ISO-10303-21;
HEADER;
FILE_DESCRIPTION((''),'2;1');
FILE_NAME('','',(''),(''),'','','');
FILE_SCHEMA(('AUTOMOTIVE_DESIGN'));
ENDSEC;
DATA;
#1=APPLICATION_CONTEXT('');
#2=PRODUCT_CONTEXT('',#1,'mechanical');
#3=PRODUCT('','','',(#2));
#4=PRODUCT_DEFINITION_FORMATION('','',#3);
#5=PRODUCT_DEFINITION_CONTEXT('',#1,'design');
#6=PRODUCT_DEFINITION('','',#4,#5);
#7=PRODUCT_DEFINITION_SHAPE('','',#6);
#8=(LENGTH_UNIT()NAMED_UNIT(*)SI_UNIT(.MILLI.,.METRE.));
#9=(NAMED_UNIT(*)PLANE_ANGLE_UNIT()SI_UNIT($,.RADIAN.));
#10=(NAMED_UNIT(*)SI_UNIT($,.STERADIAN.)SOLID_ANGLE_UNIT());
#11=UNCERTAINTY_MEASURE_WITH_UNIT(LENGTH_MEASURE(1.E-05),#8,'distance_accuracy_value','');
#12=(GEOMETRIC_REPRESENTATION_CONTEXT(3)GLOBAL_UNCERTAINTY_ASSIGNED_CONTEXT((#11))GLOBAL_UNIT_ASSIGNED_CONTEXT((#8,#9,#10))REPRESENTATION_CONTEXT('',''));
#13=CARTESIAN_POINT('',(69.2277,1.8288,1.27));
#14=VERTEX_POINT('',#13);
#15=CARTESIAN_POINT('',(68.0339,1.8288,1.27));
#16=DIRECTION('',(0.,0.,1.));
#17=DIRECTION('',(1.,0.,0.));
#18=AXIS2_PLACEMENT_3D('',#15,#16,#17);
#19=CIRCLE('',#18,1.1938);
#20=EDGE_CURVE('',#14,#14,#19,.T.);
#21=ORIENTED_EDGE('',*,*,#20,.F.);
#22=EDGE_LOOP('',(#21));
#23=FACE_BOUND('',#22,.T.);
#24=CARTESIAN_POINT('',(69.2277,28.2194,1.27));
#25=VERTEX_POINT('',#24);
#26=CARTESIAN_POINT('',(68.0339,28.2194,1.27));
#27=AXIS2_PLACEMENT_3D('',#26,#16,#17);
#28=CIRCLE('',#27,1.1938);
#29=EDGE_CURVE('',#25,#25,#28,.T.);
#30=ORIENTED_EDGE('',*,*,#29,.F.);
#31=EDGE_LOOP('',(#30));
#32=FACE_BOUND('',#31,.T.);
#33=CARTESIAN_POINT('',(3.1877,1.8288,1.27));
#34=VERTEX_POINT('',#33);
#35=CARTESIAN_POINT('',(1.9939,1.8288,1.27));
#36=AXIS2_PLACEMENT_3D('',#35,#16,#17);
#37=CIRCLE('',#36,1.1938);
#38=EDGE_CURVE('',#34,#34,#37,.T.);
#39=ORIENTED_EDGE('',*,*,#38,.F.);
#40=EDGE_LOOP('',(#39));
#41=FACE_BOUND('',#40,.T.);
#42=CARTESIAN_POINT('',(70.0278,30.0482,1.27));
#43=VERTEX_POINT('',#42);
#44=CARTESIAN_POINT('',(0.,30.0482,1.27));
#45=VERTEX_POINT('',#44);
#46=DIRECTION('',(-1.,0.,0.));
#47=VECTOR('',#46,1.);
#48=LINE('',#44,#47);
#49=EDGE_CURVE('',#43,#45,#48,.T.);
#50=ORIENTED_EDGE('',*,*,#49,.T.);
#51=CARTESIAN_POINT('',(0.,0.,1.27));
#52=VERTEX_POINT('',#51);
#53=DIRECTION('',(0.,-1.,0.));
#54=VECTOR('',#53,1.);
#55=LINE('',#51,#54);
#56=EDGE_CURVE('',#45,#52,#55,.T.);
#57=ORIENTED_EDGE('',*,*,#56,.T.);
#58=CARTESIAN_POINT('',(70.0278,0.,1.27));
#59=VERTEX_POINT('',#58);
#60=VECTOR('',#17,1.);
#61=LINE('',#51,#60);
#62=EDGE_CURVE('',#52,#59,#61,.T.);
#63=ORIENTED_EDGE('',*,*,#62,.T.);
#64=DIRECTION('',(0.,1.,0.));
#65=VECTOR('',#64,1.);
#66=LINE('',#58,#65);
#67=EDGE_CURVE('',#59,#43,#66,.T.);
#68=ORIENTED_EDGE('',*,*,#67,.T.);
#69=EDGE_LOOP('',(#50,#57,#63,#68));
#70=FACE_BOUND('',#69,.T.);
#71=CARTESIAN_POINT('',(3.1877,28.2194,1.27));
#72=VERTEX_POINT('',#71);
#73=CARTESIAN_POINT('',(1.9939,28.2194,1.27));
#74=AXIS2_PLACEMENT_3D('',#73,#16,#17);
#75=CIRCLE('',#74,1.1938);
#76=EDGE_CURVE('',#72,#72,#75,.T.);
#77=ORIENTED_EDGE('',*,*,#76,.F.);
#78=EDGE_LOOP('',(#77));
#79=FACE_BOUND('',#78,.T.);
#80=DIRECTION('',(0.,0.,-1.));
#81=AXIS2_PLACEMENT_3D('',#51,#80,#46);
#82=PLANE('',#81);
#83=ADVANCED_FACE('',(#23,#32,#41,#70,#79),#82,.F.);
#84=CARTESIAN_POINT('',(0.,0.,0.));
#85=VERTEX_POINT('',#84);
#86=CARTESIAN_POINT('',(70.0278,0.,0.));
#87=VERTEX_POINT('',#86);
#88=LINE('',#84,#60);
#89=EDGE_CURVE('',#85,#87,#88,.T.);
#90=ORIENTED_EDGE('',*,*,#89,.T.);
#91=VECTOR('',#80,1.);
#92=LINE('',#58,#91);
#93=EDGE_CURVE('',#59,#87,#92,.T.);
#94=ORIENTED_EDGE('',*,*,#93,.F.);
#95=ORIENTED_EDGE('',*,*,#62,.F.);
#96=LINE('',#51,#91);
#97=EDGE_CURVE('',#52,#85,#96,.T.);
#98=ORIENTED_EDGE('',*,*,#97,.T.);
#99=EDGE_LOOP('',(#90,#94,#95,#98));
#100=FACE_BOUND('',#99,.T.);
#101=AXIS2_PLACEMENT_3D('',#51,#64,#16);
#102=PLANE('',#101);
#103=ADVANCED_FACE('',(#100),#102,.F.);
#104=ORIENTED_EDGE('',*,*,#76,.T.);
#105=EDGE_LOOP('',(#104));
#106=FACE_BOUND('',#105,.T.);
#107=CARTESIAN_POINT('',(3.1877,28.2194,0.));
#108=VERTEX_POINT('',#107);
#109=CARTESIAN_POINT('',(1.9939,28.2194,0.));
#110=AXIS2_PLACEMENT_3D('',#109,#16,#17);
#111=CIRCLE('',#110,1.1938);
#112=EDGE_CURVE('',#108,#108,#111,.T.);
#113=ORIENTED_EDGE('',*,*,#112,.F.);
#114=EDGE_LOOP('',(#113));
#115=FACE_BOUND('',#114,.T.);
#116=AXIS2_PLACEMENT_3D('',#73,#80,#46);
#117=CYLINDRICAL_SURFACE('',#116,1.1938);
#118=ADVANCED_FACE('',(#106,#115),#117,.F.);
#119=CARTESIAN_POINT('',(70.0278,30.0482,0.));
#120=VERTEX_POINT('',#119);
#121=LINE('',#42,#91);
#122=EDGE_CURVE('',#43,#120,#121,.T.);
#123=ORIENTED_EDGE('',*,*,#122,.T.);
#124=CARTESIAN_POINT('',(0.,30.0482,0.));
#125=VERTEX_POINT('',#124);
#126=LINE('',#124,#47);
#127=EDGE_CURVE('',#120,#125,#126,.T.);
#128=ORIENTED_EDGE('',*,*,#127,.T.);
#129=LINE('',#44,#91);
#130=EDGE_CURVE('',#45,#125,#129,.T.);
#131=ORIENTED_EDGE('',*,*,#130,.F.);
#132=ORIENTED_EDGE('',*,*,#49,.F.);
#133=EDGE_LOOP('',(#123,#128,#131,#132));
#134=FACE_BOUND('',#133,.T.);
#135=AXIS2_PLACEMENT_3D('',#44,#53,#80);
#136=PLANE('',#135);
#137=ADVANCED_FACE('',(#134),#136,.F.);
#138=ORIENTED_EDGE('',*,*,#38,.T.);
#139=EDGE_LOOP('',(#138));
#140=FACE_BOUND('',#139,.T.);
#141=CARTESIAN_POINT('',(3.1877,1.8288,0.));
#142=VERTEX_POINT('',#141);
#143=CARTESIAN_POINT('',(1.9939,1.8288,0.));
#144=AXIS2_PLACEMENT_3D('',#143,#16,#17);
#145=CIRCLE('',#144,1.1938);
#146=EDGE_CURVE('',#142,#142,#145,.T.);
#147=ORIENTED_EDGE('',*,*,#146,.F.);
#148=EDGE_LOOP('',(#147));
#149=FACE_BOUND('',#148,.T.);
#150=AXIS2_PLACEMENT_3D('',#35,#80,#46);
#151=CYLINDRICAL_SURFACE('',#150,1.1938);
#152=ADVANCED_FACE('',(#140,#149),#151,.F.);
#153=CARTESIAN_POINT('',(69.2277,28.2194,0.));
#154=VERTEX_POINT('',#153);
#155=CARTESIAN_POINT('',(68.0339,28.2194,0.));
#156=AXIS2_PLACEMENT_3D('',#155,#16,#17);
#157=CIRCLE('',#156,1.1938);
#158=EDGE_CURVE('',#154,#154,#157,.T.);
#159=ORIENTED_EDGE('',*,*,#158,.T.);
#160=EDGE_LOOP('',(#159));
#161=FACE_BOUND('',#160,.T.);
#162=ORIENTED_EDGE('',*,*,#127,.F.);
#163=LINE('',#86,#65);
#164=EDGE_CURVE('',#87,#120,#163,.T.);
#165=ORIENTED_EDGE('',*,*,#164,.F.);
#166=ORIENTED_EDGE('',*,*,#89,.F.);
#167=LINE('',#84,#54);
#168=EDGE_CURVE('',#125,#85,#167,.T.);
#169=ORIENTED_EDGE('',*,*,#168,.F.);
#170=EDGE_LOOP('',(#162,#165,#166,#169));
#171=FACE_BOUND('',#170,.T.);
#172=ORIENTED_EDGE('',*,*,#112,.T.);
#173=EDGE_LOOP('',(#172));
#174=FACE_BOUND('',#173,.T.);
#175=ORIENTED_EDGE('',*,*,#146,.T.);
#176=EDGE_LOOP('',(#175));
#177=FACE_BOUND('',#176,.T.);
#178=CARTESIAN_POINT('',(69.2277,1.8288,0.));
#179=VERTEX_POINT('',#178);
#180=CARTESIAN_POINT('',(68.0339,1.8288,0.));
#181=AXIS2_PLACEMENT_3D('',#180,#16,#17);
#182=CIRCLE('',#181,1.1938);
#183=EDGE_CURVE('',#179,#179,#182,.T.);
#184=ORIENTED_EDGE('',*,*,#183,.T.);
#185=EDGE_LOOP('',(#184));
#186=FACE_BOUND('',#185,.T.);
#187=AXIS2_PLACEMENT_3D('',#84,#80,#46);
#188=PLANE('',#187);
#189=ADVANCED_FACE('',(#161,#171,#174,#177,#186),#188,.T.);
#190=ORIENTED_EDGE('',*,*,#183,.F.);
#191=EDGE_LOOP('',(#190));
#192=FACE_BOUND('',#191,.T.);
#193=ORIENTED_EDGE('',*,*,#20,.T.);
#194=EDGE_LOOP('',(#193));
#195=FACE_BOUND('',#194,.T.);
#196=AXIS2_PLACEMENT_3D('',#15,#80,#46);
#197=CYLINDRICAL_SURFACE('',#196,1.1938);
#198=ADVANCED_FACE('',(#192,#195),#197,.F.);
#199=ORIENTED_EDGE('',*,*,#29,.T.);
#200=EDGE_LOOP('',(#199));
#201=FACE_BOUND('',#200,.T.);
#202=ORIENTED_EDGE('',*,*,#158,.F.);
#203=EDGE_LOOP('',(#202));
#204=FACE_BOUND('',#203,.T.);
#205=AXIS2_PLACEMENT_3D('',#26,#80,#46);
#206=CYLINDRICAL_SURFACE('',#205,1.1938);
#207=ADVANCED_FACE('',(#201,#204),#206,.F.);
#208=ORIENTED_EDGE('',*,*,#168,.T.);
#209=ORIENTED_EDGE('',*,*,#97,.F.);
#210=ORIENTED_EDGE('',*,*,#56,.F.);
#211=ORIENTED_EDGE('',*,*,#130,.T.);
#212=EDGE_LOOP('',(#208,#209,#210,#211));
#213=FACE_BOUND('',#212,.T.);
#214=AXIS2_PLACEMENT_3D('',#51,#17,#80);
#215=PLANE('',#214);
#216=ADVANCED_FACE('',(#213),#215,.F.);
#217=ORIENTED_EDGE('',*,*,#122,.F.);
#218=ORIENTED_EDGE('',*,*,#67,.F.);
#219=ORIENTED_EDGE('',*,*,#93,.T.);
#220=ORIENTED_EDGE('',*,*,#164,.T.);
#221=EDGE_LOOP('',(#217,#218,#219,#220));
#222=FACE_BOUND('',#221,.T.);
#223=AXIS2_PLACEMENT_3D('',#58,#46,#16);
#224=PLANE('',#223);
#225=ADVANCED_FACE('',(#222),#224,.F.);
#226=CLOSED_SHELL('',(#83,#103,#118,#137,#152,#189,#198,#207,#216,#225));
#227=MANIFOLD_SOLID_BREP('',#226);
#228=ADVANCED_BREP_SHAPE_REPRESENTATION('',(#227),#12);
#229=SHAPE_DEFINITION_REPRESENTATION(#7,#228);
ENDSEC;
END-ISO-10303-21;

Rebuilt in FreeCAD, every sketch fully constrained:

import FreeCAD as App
import Part
import Sketcher
Q = App.Units.Quantity

doc = App.newDocument("Part")
params = doc.addObject("Spreadsheet::Sheet", "Params")
for row, (alias, value) in enumerate([
    ("sketch1_diameter", "0.094 in"),
    ("sketch1_width", "2.757 in"),
    ("sketch1_height", "1.183 in"),
    ("pad1_length", "0.05 in"),
], start=1):
    params.set(f"A{row}", alias)
    params.set(f"B{row}", "=" + value)
    params.setAlias(f"B{row}", alias)

body = doc.addObject("PartDesign::Body", "Body")

sketch1 = body.newObject("Sketcher::SketchObject", "Sketch")
sketch1.AttachmentSupport = (doc.getObject("XY_Plane"), [""])
sketch1.MapMode = "FlatFace"
sketch1.addGeometry([
    Part.LineSegment(App.Vector(0, 30, 0), App.Vector(0, 0, 0)),
    Part.LineSegment(App.Vector(0, 0, 0), App.Vector(70, 0, 0)),
    Part.LineSegment(App.Vector(70, 0, 0), App.Vector(70, 30, 0)),
    Part.LineSegment(App.Vector(70, 30, 0), App.Vector(0, 30, 0)),
    Part.Circle(App.Vector(2, 1.8, 0), App.Vector(0, 0, 1), 1.2),
    Part.Circle(App.Vector(68, 1.8, 0), App.Vector(0, 0, 1), 1.2),
    Part.Circle(App.Vector(2, 28.2, 0), App.Vector(0, 0, 1), 1.2),
    Part.Circle(App.Vector(68, 28.2, 0), App.Vector(0, 0, 1), 1.2),
], False)
sketch1.addConstraint([
    Sketcher.Constraint("Coincident", 0, 2, 1, 1),
    Sketcher.Constraint("Coincident", 1, 2, 2, 1),
    Sketcher.Constraint("Coincident", 2, 2, 3, 1),
    Sketcher.Constraint("Coincident", 3, 2, 0, 1),
    Sketcher.Constraint("Vertical", 0),
    Sketcher.Constraint("Horizontal", 1),
    Sketcher.Constraint("Vertical", 2),
    Sketcher.Constraint("Horizontal", 3),
    Sketcher.Constraint("Coincident", 0, 2, -1, 1),
    Sketcher.Constraint("Equal", 4, 5),
    Sketcher.Constraint("Equal", 5, 6),
    Sketcher.Constraint("Equal", 6, 7),
    Sketcher.Constraint("Horizontal", 4, 3, 5, 3),
    Sketcher.Constraint("Horizontal", 6, 3, 7, 3),
    Sketcher.Constraint("Vertical", 4, 3, 6, 3),
    Sketcher.Constraint("Vertical", 5, 3, 7, 3),
    Sketcher.Constraint("Diameter", 4, Q("0.094 in")),
    Sketcher.Constraint("DistanceX", 4, 3, 5, 3, Q("2.6 in")),
    Sketcher.Constraint("DistanceX", 1, 1, 1, 2, Q("2.757 in")),
    Sketcher.Constraint("DistanceY", 0, 2, 0, 1, Q("1.183 in")),
    Sketcher.Constraint("DistanceY", -1, 1, 4, 3, Q("0.072 in")),
    Sketcher.Constraint("DistanceY", -1, 1, 6, 3, Q("1.111 in")),
    Sketcher.Constraint("DistanceX", -1, 1, 4, 3, Q("0.0785 in")),
])
sketch1.setExpression("Constraints[16]", "Params.sketch1_diameter")
sketch1.setExpression("Constraints[18]", "Params.sketch1_width")
sketch1.setExpression("Constraints[19]", "Params.sketch1_height")
pad1 = body.newObject("PartDesign::Pad", "Pad")
pad1.Profile = sketch1
pad1.setExpression("Length", "Params.pad1_length")

doc.recompute()
